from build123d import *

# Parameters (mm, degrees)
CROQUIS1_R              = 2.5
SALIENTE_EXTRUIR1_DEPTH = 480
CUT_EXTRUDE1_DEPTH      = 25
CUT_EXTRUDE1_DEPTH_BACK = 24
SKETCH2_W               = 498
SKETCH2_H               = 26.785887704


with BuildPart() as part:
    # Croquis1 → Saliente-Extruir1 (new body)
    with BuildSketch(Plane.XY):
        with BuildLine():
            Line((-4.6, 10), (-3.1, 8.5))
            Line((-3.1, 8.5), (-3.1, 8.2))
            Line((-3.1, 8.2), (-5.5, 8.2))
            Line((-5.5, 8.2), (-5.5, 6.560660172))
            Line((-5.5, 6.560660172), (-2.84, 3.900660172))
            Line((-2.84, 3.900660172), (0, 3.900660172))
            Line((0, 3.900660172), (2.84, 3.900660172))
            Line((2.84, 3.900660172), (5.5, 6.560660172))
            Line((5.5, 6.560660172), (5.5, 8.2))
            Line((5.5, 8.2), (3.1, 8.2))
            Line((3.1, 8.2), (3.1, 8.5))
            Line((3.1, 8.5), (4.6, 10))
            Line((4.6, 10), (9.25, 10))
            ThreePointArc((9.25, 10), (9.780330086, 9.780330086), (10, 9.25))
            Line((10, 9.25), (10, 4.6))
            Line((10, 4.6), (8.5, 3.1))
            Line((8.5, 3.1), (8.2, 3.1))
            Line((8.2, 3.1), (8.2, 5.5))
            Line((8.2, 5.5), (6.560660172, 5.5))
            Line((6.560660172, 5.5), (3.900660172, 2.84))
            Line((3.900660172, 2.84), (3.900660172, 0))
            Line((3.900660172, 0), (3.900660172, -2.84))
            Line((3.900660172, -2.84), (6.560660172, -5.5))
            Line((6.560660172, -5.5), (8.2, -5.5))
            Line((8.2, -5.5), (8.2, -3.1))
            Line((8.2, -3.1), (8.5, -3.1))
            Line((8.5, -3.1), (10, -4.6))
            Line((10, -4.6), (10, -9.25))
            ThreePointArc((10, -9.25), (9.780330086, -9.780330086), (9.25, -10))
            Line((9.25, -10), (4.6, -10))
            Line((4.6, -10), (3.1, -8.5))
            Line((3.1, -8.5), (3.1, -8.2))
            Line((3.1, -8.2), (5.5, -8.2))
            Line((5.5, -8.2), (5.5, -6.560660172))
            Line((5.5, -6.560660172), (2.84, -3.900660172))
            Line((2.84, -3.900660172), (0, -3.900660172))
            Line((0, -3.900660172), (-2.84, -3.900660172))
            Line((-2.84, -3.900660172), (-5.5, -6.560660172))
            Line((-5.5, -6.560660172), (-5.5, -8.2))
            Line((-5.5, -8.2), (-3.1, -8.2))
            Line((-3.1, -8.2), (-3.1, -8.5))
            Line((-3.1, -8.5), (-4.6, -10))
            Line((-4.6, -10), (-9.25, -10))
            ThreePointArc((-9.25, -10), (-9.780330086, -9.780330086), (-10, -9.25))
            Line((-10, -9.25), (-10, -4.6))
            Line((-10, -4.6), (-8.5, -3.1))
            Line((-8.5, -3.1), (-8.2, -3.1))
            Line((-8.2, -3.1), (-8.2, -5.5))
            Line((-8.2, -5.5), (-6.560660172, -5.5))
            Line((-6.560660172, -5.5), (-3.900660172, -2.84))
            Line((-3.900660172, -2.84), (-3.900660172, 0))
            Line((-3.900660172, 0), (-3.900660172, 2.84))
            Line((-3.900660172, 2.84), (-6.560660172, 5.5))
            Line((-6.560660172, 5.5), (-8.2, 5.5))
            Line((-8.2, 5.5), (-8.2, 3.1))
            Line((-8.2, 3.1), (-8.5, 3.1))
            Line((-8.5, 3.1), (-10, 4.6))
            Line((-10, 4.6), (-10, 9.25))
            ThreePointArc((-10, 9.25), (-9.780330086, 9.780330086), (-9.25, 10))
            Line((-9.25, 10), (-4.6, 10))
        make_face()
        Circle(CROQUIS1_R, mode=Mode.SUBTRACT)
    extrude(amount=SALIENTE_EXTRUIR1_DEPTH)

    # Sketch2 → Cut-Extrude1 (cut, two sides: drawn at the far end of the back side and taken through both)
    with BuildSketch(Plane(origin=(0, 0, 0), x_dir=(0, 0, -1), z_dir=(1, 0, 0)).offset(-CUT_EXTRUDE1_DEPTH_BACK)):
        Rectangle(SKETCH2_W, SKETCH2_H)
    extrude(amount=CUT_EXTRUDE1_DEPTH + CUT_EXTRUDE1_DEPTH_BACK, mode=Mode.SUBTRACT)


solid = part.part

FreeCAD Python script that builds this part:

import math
import FreeCAD as App
import Part
import Sketcher

V = App.Vector
Q = App.Units.Quantity

doc = App.newDocument("Part")
body = doc.addObject("PartDesign::Body", "Body")

sketch1 = body.newObject("Sketcher::SketchObject", "Sketch")
sketch1.AttachmentSupport = (doc.getObject("XY_Plane"), [""])
sketch1.MapMode = "FlatFace"
sketch1.addGeometry([
    Part.LineSegment(V(-3.1, 8.5, 0), V(-4.6, 10, 0)),
    Part.LineSegment(V(-4.6, 10, 0), V(-9.25, 10, 0)),
    Part.ArcOfCircle(Part.Circle(V(-9.25, 9.25, 0), V(0, 0, 1), 0.75), math.radians(90), math.radians(180)),
    Part.LineSegment(V(-10, 9.25, 0), V(-10, 4.6, 0)),
    Part.LineSegment(V(-10, 4.6, 0), V(-8.5, 3.1, 0)),
    Part.LineSegment(V(-8.5, 3.1, 0), V(-8.2, 3.1, 0)),
    Part.LineSegment(V(-8.2, 3.1, 0), V(-8.2, 5.5, 0)),
    Part.LineSegment(V(-8.2, 5.5, 0), V(-6.56066, 5.5, 0)),
    Part.LineSegment(V(-6.56066, 5.5, 0), V(-3.90066, 2.84, 0)),
    Part.LineSegment(V(-3.90066, 2.84, 0), V(-3.90066, -2.84, 0)),
    Part.LineSegment(V(-3.90066, -2.84, 0), V(-6.56066, -5.5, 0)),
    Part.LineSegment(V(-6.56066, -5.5, 0), V(-8.2, -5.5, 0)),
    Part.LineSegment(V(-8.2, -5.5, 0), V(-8.2, -3.1, 0)),
    Part.LineSegment(V(-8.2, -3.1, 0), V(-8.5, -3.1, 0)),
    Part.LineSegment(V(-8.5, -3.1, 0), V(-10, -4.6, 0)),
    Part.LineSegment(V(-10, -4.6, 0), V(-10, -9.25, 0)),
    Part.ArcOfCircle(Part.Circle(V(-9.25, -9.25, 0), V(0, 0, 1), 0.75), math.radians(180), math.radians(270)),
    Part.LineSegment(V(-9.25, -10, 0), V(-4.6, -10, 0)),
    Part.LineSegment(V(-4.6, -10, 0), V(-3.1, -8.5, 0)),
    Part.LineSegment(V(-3.1, -8.5, 0), V(-3.1, -8.2, 0)),
    Part.LineSegment(V(-3.1, -8.2, 0), V(-5.5, -8.2, 0)),
    Part.LineSegment(V(-5.5, -8.2, 0), V(-5.5, -6.56066, 0)),
    Part.LineSegment(V(-5.5, -6.56066, 0), V(-2.84, -3.90066, 0)),
    Part.LineSegment(V(-2.84, -3.90066, 0), V(2.84, -3.90066, 0)),
    Part.LineSegment(V(2.84, -3.90066, 0), V(5.5, -6.56066, 0)),
    Part.LineSegment(V(5.5, -6.56066, 0), V(5.5, -8.2, 0)),
    Part.LineSegment(V(5.5, -8.2, 0), V(3.1, -8.2, 0)),
    Part.LineSegment(V(3.1, -8.2, 0), V(3.1, -8.5, 0)),
    Part.LineSegment(V(3.1, -8.5, 0), V(4.6, -10, 0)),
    Part.LineSegment(V(4.6, -10, 0), V(9.25, -10, 0)),
    Part.ArcOfCircle(Part.Circle(V(9.25, -9.25, 0), V(0, 0, 1), 0.75), math.radians(-90), math.radians(0)),
    Part.LineSegment(V(10, -9.25, 0), V(10, -4.6, 0)),
    Part.LineSegment(V(10, -4.6, 0), V(8.5, -3.1, 0)),
    Part.LineSegment(V(8.5, -3.1, 0), V(8.2, -3.1, 0)),
    Part.LineSegment(V(8.2, -3.1, 0), V(8.2, -5.5, 0)),
    Part.LineSegment(V(8.2, -5.5, 0), V(6.56066, -5.5, 0)),
    Part.LineSegment(V(6.56066, -5.5, 0), V(3.90066, -2.84, 0)),
    Part.LineSegment(V(3.90066, -2.84, 0), V(3.90066, 2.84, 0)),
    Part.LineSegment(V(3.90066, 2.84, 0), V(6.56066, 5.5, 0)),
    Part.LineSegment(V(6.56066, 5.5, 0), V(8.2, 5.5, 0)),
    Part.LineSegment(V(8.2, 5.5, 0), V(8.2, 3.1, 0)),
    Part.LineSegment(V(8.2, 3.1, 0), V(8.5, 3.1, 0)),
    Part.LineSegment(V(8.5, 3.1, 0), V(10, 4.6, 0)),
    Part.LineSegment(V(10, 4.6, 0), V(10, 9.25, 0)),
    Part.ArcOfCircle(Part.Circle(V(9.25, 9.25, 0), V(0, 0, 1), 0.75), math.radians(0), math.radians(90)),
    Part.LineSegment(V(9.25, 10, 0), V(4.6, 10, 0)),
    Part.LineSegment(V(4.6, 10, 0), V(3.1, 8.5, 0)),
    Part.LineSegment(V(3.1, 8.5, 0), V(3.1, 8.2, 0)),
    Part.LineSegment(V(3.1, 8.2, 0), V(5.5, 8.2, 0)),
    Part.LineSegment(V(5.5, 8.2, 0), V(5.5, 6.56066, 0)),
    Part.LineSegment(V(5.5, 6.56066, 0), V(2.84, 3.90066, 0)),
    Part.LineSegment(V(2.84, 3.90066, 0), V(-2.84, 3.90066, 0)),
    Part.LineSegment(V(-2.84, 3.90066, 0), V(-5.5, 6.56066, 0)),
    Part.LineSegment(V(-5.5, 6.56066, 0), V(-5.5, 8.2, 0)),
    Part.LineSegment(V(-5.5, 8.2, 0), V(-3.1, 8.2, 0)),
    Part.LineSegment(V(-3.1, 8.2, 0), V(-3.1, 8.5, 0)),
    Part.Circle(V(0, 0, 0), V(0, 0, 1), 2.5),
], False)
sketch1.addConstraint([
    Sketcher.Constraint("Coincident", 0, 2, 1, 1),
    Sketcher.Constraint("Tangent", 1, 2, 2, 1),
    Sketcher.Constraint("Tangent", 2, 2, 3, 1),
    Sketcher.Constraint("Coincident", 3, 2, 4, 1),
    Sketcher.Constraint("Coincident", 4, 2, 5, 1),
    Sketcher.Constraint("Coincident", 5, 2, 6, 1),
    Sketcher.Constraint("Coincident", 6, 2, 7, 1),
    Sketcher.Constraint("Coincident", 7, 2, 8, 1),
    Sketcher.Constraint("Coincident", 8, 2, 9, 1),
    Sketcher.Constraint("Coincident", 9, 2, 10, 1),
    Sketcher.Constraint("Coincident", 10, 2, 11, 1),
    Sketcher.Constraint("Coincident", 11, 2, 12, 1),
    Sketcher.Constraint("Coincident", 12, 2, 13, 1),
    Sketcher.Constraint("Coincident", 13, 2, 14, 1),
    Sketcher.Constraint("Coincident", 14, 2, 15, 1),
    Sketcher.Constraint("Tangent", 15, 2, 16, 1),
    Sketcher.Constraint("Tangent", 16, 2, 17, 1),
    Sketcher.Constraint("Coincident", 17, 2, 18, 1),
    Sketcher.Constraint("Coincident", 18, 2, 19, 1),
    Sketcher.Constraint("Coincident", 19, 2, 20, 1),
    Sketcher.Constraint("Coincident", 20, 2, 21, 1),
    Sketcher.Constraint("Coincident", 21, 2, 22, 1),
    Sketcher.Constraint("Coincident", 22, 2, 23, 1),
    Sketcher.Constraint("Coincident", 23, 2, 24, 1),
    Sketcher.Constraint("Coincident", 24, 2, 25, 1),
    Sketcher.Constraint("Coincident", 25, 2, 26, 1),
    Sketcher.Constraint("Coincident", 26, 2, 27, 1),
    Sketcher.Constraint("Coincident", 27, 2, 28, 1),
    Sketcher.Constraint("Coincident", 28, 2, 29, 1),
    Sketcher.Constraint("Tangent", 29, 2, 30, 1),
    Sketcher.Constraint("Tangent", 30, 2, 31, 1),
    Sketcher.Constraint("Coincident", 31, 2, 32, 1),
    Sketcher.Constraint("Coincident", 32, 2, 33, 1),
    Sketcher.Constraint("Coincident", 33, 2, 34, 1),
    Sketcher.Constraint("Coincident", 34, 2, 35, 1),
    Sketcher.Constraint("Coincident", 35, 2, 36, 1),
    Sketcher.Constraint("Coincident", 36, 2, 37, 1),
    Sketcher.Constraint("Coincident", 37, 2, 38, 1),
    Sketcher.Constraint("Coincident", 38, 2, 39, 1),
    Sketcher.Constraint("Coincident", 39, 2, 40, 1),
    Sketcher.Constraint("Coincident", 40, 2, 41, 1),
    Sketcher.Constraint("Coincident", 41, 2, 42, 1),
    Sketcher.Constraint("Coincident", 42, 2, 43, 1),
    Sketcher.Constraint("Tangent", 43, 2, 44, 1),
    Sketcher.Constraint("Tangent", 44, 2, 45, 1),
    Sketcher.Constraint("Coincident", 45, 2, 46, 1),
    Sketcher.Constraint("Coincident", 46, 2, 47, 1),
    Sketcher.Constraint("Coincident", 47, 2, 48, 1),
    Sketcher.Constraint("Coincident", 48, 2, 49, 1),
    Sketcher.Constraint("Coincident", 49, 2, 50, 1),
    Sketcher.Constraint("Coincident", 50, 2, 51, 1),
    Sketcher.Constraint("Coincident", 51, 2, 52, 1),
    Sketcher.Constraint("Coincident", 52, 2, 53, 1),
    Sketcher.Constraint("Coincident", 53, 2, 54, 1),
    Sketcher.Constraint("Coincident", 54, 2, 55, 1),
    Sketcher.Constraint("Coincident", 55, 2, 0, 1),
    Sketcher.Constraint("Horizontal", 1),
    Sketcher.Constraint("Vertical", 3),
    Sketcher.Constraint("Horizontal", 5),
    Sketcher.Constraint("Vertical", 6),
    Sketcher.Constraint("Horizontal", 7),
    Sketcher.Constraint("Vertical", 9),
    Sketcher.Constraint("Horizontal", 11),
    Sketcher.Constraint("Vertical", 12),
    Sketcher.Constraint("Horizontal", 13),
    Sketcher.Constraint("Vertical", 15),
    Sketcher.Constraint("Horizontal", 17),
    Sketcher.Constraint("Vertical", 19),
    Sketcher.Constraint("Horizontal", 20),
    Sketcher.Constraint("Vertical", 21),
    Sketcher.Constraint("Horizontal", 23),
    Sketcher.Constraint("Vertical", 25),
    Sketcher.Constraint("Horizontal", 26),
    Sketcher.Constraint("Vertical", 27),
    Sketcher.Constraint("Horizontal", 29),
    Sketcher.Constraint("Vertical", 31),
    Sketcher.Constraint("Horizontal", 33),
    Sketcher.Constraint("Vertical", 34),
    Sketcher.Constraint("Horizontal", 35),
    Sketcher.Constraint("Vertical", 37),
    Sketcher.Constraint("Horizontal", 39),
    Sketcher.Constraint("Vertical", 40),
    Sketcher.Constraint("Horizontal", 41),
    Sketcher.Constraint("Vertical", 43),
    Sketcher.Constraint("Horizontal", 45),
    Sketcher.Constraint("Vertical", 47),
    Sketcher.Constraint("Horizontal", 48),
    Sketcher.Constraint("Vertical", 49),
    Sketcher.Constraint("Horizontal", 51),
    Sketcher.Constraint("Vertical", 53),
    Sketcher.Constraint("Horizontal", 54),
    Sketcher.Constraint("Vertical", 55),
    Sketcher.Constraint("Coincident", 56, 3, -1, 1),
    Sketcher.Constraint("Equal", 2, 16),
    Sketcher.Constraint("Equal", 16, 30),
    Sketcher.Constraint("Equal", 30, 44),
    Sketcher.Constraint("Symmetric", 2, 3, 30, 3, -1, 1),
    Sketcher.Constraint("Symmetric", 16, 3, 44, 3, -1, 1),
    Sketcher.Constraint("Symmetric", 4, 2, 32, 2, -1, 1),
    Sketcher.Constraint("Symmetric", 6, 2, 34, 2, -1, 1),
    Sketcher.Constraint("Symmetric", 8, 2, 36, 2, -1, 1),
    Sketcher.Constraint("Symmetric", 10, 2, 38, 2, -1, 1),
    Sketcher.Constraint("Symmetric", 12, 2, 40, 2, -1, 1),
    Sketcher.Constraint("Symmetric", 18, 2, 46, 2, -1, 1),
    Sketcher.Constraint("Symmetric", 20, 2, 48, 2, -1, 1),
    Sketcher.Constraint("Symmetric", 22, 2, 50, 2, -1, 1),
    Sketcher.Constraint("Symmetric", 24, 2, 52, 2, -1, 1),
    Sketcher.Constraint("Symmetric", 26, 2, 54, 2, -1, 1),
    Sketcher.Constraint("Symmetric", 16, 3, 30, 3, -2),
    Sketcher.Constraint("Symmetric", 21, 2, 24, 2, -2),
    Sketcher.Constraint("Symmetric", 19, 2, 26, 2, -2),
    Sketcher.Constraint("Symmetric", 13, 2, 32, 2, -2),
    Sketcher.Constraint("Symmetric", 11, 2, 34, 2, -2),
    Sketcher.Constraint("Parallel", 0, 4),
    Sketcher.Constraint("Parallel", 4, 8),
    Sketcher.Constraint("Perpendicular", 8, 10),
    Sketcher.Constraint("Parallel", 10, 14),
    Sketcher.Constraint("Parallel", 14, 18),
    Sketcher.Constraint("Parallel", 18, 22),
    Sketcher.Constraint("Perpendicular", 22, 24),
    Sketcher.Constraint("Parallel", 24, 28),
    Sketcher.Constraint("Parallel", 28, 32),
    Sketcher.Constraint("Parallel", 32, 36),
    Sketcher.Constraint("Perpendicular", 36, 38),
    Sketcher.Constraint("Parallel", 38, 42),
    Sketcher.Constraint("Parallel", 42, 46),
    Sketcher.Constraint("Parallel", 46, 50),
    Sketcher.Constraint("Perpendicular", 50, 52),
    Sketcher.Constraint("Horizontal", 18, 2, 27, 2),
    Sketcher.Constraint("Horizontal", 14, 2, 31, 2),
    Sketcher.Constraint("Horizontal", 9, 2, 36, 2),
    Sketcher.Constraint("Horizontal", 3, 2, 42, 2),
    Sketcher.Constraint("Horizontal", 46, 2, 55, 2),
    Sketcher.Constraint("Equal", 45, 3),
    Sketcher.Constraint("Equal", 54, 6),
    Sketcher.Constraint("Equal", 51, 9),
    Sketcher.Constraint("Equal", 41, 19),
    Sketcher.Constraint("Equal", 39, 21),
    Sketcher.Constraint("Equal", 0, 4),
    Sketcher.Constraint("Equal", 10, 22),
    Sketcher.Constraint("Diameter", 56, Q("5 mm")),
    Sketcher.Constraint("Radius", 2, Q("0.75 mm")),
    Sketcher.Constraint("DistanceX", 5, 1, 5, 2, Q("0.3 mm")),
    Sketcher.Constraint("DistanceX", 20, 2, 20, 1, Q("2.4 mm")),
    Sketcher.Constraint("DistanceY", -1, 1, 0, 2, Q("10 mm")),
    Sketcher.Constraint("DistanceX", 1, 2, 1, 1, Q("4.65 mm")),
    Sketcher.Constraint("DistanceX", 23, 1, 23, 2, Q("5.68 mm")),
    Sketcher.Constraint("DistanceX", 4, 2, -1, 1, Q("8.5 mm")),
    Sketcher.Constraint("DistanceX", 7, 1, 7, 2, Q("1.63934 mm")),
])
pad1 = body.newObject("PartDesign::Pad", "Pad")
pad1.Profile = sketch1
pad1.Length = 480

sketch2 = body.newObject("Sketcher::SketchObject", "Sketch001")
sketch2.AttachmentSupport = (doc.getObject("YZ_Plane"), [""])
sketch2.MapMode = "FlatFace"
sketch2.addGeometry([
    Part.LineSegment(V(13.392944, 249, 0), V(-13.392944, 249, 0)),
    Part.LineSegment(V(-13.392944, 249, 0), V(-13.392944, -249, 0)),
    Part.LineSegment(V(-13.392944, -249, 0), V(13.392944, -249, 0)),
    Part.LineSegment(V(13.392944, -249, 0), V(13.392944, 249, 0)),
], False)
sketch2.addConstraint([
    Sketcher.Constraint("Coincident", 0, 2, 1, 1),
    Sketcher.Constraint("Coincident", 1, 2, 2, 1),
    Sketcher.Constraint("Coincident", 2, 2, 3, 1),
    Sketcher.Constraint("Coincident", 3, 2, 0, 1),
    Sketcher.Constraint("Horizontal", 0),
    Sketcher.Constraint("Vertical", 1),
    Sketcher.Constraint("Horizontal", 2),
    Sketcher.Constraint("Vertical", 3),
    Sketcher.Constraint("Symmetric", 0, 2, 2, 2, -1, 1),
    Sketcher.Constraint("DistanceY", 1, 2, 1, 1, Q("498 mm")),
    Sketcher.Constraint("DistanceX", 0, 2, 0, 1, Q("26.785888 mm")),
])
pocket1 = body.newObject("PartDesign::Pocket", "Pocket")
pocket1.Profile = sketch2
pocket1.Type = "ThroughAll"
pocket1.Midplane = True

doc.recompute()
